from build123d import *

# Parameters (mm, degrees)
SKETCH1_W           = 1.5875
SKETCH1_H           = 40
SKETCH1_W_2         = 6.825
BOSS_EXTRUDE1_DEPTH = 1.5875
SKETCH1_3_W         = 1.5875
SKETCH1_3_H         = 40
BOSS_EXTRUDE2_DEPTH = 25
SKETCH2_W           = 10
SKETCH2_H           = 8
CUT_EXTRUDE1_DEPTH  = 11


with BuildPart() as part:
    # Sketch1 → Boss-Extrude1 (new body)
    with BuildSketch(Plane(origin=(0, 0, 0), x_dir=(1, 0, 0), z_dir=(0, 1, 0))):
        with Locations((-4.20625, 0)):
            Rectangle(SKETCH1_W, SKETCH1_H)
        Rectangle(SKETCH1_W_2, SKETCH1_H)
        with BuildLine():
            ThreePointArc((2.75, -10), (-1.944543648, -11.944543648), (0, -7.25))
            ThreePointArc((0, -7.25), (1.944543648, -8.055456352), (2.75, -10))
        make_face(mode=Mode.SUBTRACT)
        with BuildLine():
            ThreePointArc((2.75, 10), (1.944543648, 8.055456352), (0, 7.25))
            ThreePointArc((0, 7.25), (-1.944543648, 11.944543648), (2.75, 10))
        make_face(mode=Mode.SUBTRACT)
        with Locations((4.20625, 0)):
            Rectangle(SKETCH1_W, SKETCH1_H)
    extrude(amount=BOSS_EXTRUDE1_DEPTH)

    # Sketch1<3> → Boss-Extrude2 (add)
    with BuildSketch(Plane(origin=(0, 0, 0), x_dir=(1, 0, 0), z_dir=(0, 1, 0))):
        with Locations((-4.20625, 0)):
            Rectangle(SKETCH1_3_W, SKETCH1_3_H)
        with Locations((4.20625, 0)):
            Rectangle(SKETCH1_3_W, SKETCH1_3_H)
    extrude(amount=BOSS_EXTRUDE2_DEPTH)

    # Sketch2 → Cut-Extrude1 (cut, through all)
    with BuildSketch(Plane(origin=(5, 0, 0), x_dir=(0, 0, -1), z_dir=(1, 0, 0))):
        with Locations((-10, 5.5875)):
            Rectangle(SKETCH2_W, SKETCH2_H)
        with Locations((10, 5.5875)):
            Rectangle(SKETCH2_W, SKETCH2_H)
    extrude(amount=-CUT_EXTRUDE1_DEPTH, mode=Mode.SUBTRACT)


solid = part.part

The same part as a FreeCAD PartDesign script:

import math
import FreeCAD as App
import Part
import Sketcher

V = App.Vector


def add_polygon(sketch, points):
    """Adds a closed chain of lines whose ends are joined by coincident constraints."""
    first, n = sketch.GeometryCount, len(points)
    for a, b in zip(points, points[1:] + points[:1]):
        sketch.addGeometry(Part.LineSegment(App.Vector(*a, 0), App.Vector(*b, 0)), False)
    for i in range(n):
        sketch.addConstraint(Sketcher.Constraint("Coincident", first + i, 2, first + (i + 1) % n, 1))

doc = App.newDocument("Part")
body = doc.addObject("PartDesign::Body", "Body")

# Sketch on XZ plane
sketch1 = body.newObject("Sketcher::SketchObject", "Sketch")
sketch1.AttachmentSupport = (doc.getObject("XZ_Plane"), [""])
sketch1.MapMode = "FlatFace"
add_polygon(sketch1, [(-5, -20), (-5, 20), (5, 20), (5, -20)])  # lines 0-3
sketch1.addGeometry(Part.ArcOfCircle(Part.Circle(V(0, 10, 0), V(0, 0, 1), 2.75), math.radians(-90), math.radians(0)), False)  # 4
sketch1.addGeometry(Part.ArcOfCircle(Part.Circle(V(0, 10, 0), V(0, 0, 1), 2.75), math.radians(0), math.radians(270)), False)  # 5
sketch1.addGeometry(Part.ArcOfCircle(Part.Circle(V(0, -10, 0), V(0, 0, 1), 2.75), math.radians(90), math.radians(360)), False)  # 6
sketch1.addGeometry(Part.ArcOfCircle(Part.Circle(V(0, -10, 0), V(0, 0, 1), 2.75), math.radians(0), math.radians(90)), False)  # 7
sketch1.addConstraint([
    Sketcher.Constraint("Tangent", 4, 1, 5, 2),
    Sketcher.Constraint("Coincident", 5, 1, 4, 2),
    Sketcher.Constraint("Tangent", 6, 1, 7, 2),
    Sketcher.Constraint("Coincident", 7, 1, 6, 2),
    Sketcher.Constraint("Vertical", 0),
    Sketcher.Constraint("Horizontal", 1),
    Sketcher.Constraint("Vertical", 2),
    Sketcher.Constraint("Horizontal", 3),
    Sketcher.Constraint("Equal", 5, 6),
    Sketcher.Constraint("Symmetric", 4, 3, 6, 3, -1, 1),
    Sketcher.Constraint("Symmetric", 0, 2, 2, 2, -1, 1),
    Sketcher.Constraint("Symmetric", 5, 1, 7, 1, -1),
    Sketcher.Constraint("PointOnObject", 4, 1, -2),
    Sketcher.Constraint("PointOnObject", 6, 1, -2),
    Sketcher.Constraint("Horizontal", 4, 3, 5, 1),
    Sketcher.Constraint("DistanceX", 1, 1, 1, 2, 10.0),
    Sketcher.Constraint("DistanceY", 0, 1, 0, 2, 40.0),
    Sketcher.Constraint("Radius", 4, 2.75),
    Sketcher.Constraint("DistanceY", -1, 1, 4, 3, 10.0),
])
pad1 = body.newObject("PartDesign::Pad", "Pad")
pad1.Profile = sketch1
pad1.Length = 1.5875
pad1.Reversed = True

# Sketch on XZ plane
sketch2 = body.newObject("Sketcher::SketchObject", "Sketch001")
sketch2.AttachmentSupport = (doc.getObject("XZ_Plane"), [""])
sketch2.MapMode = "FlatFace"
add_polygon(sketch2, [(-5, -20), (-5, 20), (-3.4125, 20), (-3.4125, -20)])  # lines 0-3
add_polygon(sketch2, [(3.4125, -20), (3.4125, 20), (5, 20), (5, -20)])  # lines 4-7
sketch2.addConstraint([
    Sketcher.Constraint("Vertical", 0),
    Sketcher.Constraint("Horizontal", 1),
    Sketcher.Constraint("Vertical", 2),
    Sketcher.Constraint("Horizontal", 3),
    Sketcher.Constraint("Vertical", 4),
    Sketcher.Constraint("Horizontal", 5),
    Sketcher.Constraint("Vertical", 6),
    Sketcher.Constraint("Horizontal", 7),
    Sketcher.Constraint("Symmetric", 2, 2, 4, 2, -1, 1),
    Sketcher.Constraint("Symmetric", 0, 2, 6, 2, -1, 1),
    Sketcher.Constraint("Horizontal", 1, 2, 4, 2),
    Sketcher.Constraint("DistanceY", 0, 1, 0, 2, 40.0),
    Sketcher.Constraint("DistanceX", 0, 2, -1, 1, 5.0),
    Sketcher.Constraint("DistanceX", 1, 1, 1, 2, 1.5875),
])
pad2 = body.newObject("PartDesign::Pad", "Pad001")
pad2.Profile = sketch2
pad2.Length = 25
pad2.Reversed = True

# Sketch on YZ plane
sketch3 = body.newObject("Sketcher::SketchObject", "Sketch002")
sketch3.AttachmentSupport = (doc.getObject("YZ_Plane"), [""])
sketch3.MapMode = "FlatFace"
sketch3.AttachmentOffset = App.Placement(V(0, 0, 5), App.Rotation())
add_polygon(sketch3, [(9.5875, 15), (1.5875, 15), (1.5875, 5), (9.5875, 5)])  # lines 0-3
add_polygon(sketch3, [(9.5875, -5), (1.5875, -5), (1.5875, -15), (9.5875, -15)])  # lines 4-7
sketch3.addConstraint([
    Sketcher.Constraint("Horizontal", 0),
    Sketcher.Constraint("Vertical", 1),
    Sketcher.Constraint("Horizontal", 2),
    Sketcher.Constraint("Vertical", 3),
    Sketcher.Constraint("Horizontal", 4),
    Sketcher.Constraint("Vertical", 5),
    Sketcher.Constraint("Horizontal", 6),
    Sketcher.Constraint("Vertical", 7),
    Sketcher.Constraint("Symmetric", 1, 2, 4, 2, -1),
    Sketcher.Constraint("Symmetric", 3, 2, 6, 2, -1),
    Sketcher.Constraint("DistanceX", 0, 2, 0, 1, 8.0),
    Sketcher.Constraint("DistanceY", 1, 2, 1, 1, 10.0),
    Sketcher.Constraint("DistanceY", -1, 1, 0, 2, 15.0),
    Sketcher.Constraint("DistanceX", -1, 1, 0, 2, 1.5875),
])
pocket1 = body.newObject("PartDesign::Pocket", "Pocket")
pocket1.Profile = sketch3
pocket1.Type = "ThroughAll"

doc.recompute()
